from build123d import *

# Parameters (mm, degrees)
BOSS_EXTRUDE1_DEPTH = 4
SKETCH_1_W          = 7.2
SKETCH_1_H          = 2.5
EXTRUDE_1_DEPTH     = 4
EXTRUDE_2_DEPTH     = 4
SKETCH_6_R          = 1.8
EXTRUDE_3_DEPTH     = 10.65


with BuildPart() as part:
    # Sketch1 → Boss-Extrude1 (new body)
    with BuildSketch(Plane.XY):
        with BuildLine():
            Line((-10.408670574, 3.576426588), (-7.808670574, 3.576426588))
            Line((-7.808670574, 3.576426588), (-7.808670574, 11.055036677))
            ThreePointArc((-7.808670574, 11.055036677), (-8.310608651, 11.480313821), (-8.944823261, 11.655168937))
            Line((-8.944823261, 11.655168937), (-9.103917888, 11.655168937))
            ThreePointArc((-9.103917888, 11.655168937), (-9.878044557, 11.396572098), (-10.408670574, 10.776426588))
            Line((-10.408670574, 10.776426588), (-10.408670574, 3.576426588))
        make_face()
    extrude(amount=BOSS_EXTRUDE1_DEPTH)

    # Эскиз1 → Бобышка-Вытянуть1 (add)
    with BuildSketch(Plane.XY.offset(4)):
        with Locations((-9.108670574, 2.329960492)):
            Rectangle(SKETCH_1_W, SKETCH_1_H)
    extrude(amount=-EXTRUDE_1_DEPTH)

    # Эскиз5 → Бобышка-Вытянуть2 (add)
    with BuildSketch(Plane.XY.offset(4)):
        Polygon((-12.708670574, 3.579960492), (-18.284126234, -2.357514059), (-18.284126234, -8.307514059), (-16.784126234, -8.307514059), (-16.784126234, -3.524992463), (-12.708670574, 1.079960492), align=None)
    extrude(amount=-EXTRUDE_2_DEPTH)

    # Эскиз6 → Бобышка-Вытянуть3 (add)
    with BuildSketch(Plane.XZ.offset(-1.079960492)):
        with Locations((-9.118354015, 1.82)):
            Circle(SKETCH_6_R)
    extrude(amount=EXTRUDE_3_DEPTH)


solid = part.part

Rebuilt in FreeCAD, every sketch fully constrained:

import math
import FreeCAD as App
import Part
import Sketcher
from FreeCAD import Vector


def add_polygon(sketch, points):
    """Adds a closed chain of lines whose ends are joined by coincident constraints."""
    first, n = sketch.GeometryCount, len(points)
    for a, b in zip(points, points[1:] + points[:1]):
        sketch.addGeometry(Part.LineSegment(App.Vector(*a, 0), App.Vector(*b, 0)), False)
    for i in range(n):
        sketch.addConstraint(Sketcher.Constraint("Coincident", first + i, 2, first + (i + 1) % n, 1))

doc = App.newDocument("Part")
body = doc.addObject("PartDesign::Body", "Body")

sketch1 = doc.addObject("Sketcher::SketchObject", "Sketch")
body.addObject(sketch1)
sketch1.AttachmentSupport = (doc.XY_Plane, [""])
sketch1.MapMode = "FlatFace"
sketch1.addGeometry([
    Part.LineSegment(Vector(-10.41, 3.58, 0), Vector(-7.81, 3.58, 0)),
    Part.LineSegment(Vector(-7.81, 3.58, 0), Vector(-7.81, 11.06, 0)),
    Part.ArcOfCircle(Part.Circle(Vector(-9.02, 10.13, 0), Vector(0, 0, 1), 1.53), math.radians(37), math.radians(87)),
    Part.LineSegment(Vector(-8.94, 11.66, 0), Vector(-9.1, 11.66, 0)),
    Part.ArcOfCircle(Part.Circle(Vector(-9.02, 10.13, 0), Vector(0, 0, 1), 1.53), math.radians(93), math.radians(155)),
    Part.LineSegment(Vector(-10.41, 10.78, 0), Vector(-10.41, 3.58, 0)),
], False)
sketch1.addConstraint([
    Sketcher.Constraint("Coincident", 0, 2, 1, 1),
    Sketcher.Constraint("Coincident", 1, 2, 2, 1),
    Sketcher.Constraint("Coincident", 2, 2, 3, 1),
    Sketcher.Constraint("Coincident", 3, 2, 4, 1),
    Sketcher.Constraint("Coincident", 4, 2, 5, 1),
    Sketcher.Constraint("Coincident", 5, 2, 0, 1),
    Sketcher.Constraint("Horizontal", 0),
    Sketcher.Constraint("Vertical", 1),
    Sketcher.Constraint("Horizontal", 3),
    Sketcher.Constraint("Vertical", 5),
    Sketcher.Constraint("Coincident", 4, 3, 2, 3),
    Sketcher.Constraint("Equal", 2, 4),
    Sketcher.Constraint("DistanceX", 0, 1, 0, 2, 2.6),
    Sketcher.Constraint("DistanceY", 5, 2, 5, 1, 7.2),
    Sketcher.Constraint("Radius", 2, 1.5282),
    Sketcher.Constraint("DistanceY", 1, 1, 1, 2, 7.47861),
    Sketcher.Constraint("DistanceX", 3, 2, 3, 1, 0.159095),
    Sketcher.Constraint("DistanceX", 2, 3, -1, 1, 9.024371),
    Sketcher.Constraint("DistanceY", -1, 1, 2, 3, 10.129041),
])
pad1 = doc.addObject("PartDesign::Pad", "Pad")
body.addObject(pad1)
pad1.Profile = sketch1
pad1.Length = 4

sketch2 = doc.addObject("Sketcher::SketchObject", "Sketch001")
body.addObject(sketch2)
sketch2.AttachmentSupport = (doc.XY_Plane, [""])
sketch2.MapMode = "FlatFace"
sketch2.AttachmentOffset = App.Placement(Vector(0, 0, 4), App.Rotation())
add_polygon(sketch2, [(-12.7, 3.6), (-12.7, 1.1), (-5.5, 1.1), (-5.5, 3.6)])
sketch2.addConstraint([
    Sketcher.Constraint("Vertical", 0),
    Sketcher.Constraint("Horizontal", 1),
    Sketcher.Constraint("Vertical", 2),
    Sketcher.Constraint("Horizontal", 3),
    Sketcher.Constraint("DistanceX", 1, 1, 1, 2, 7.2),
    Sketcher.Constraint("DistanceY", 0, 2, 0, 1, 2.5),
    Sketcher.Constraint("DistanceX", 0, 2, -1, 1, 12.708671),
    Sketcher.Constraint("DistanceY", -1, 1, 0, 2, 1.07996),
])
pad2 = doc.addObject("PartDesign::Pad", "Pad001")
body.addObject(pad2)
pad2.Profile = sketch2
pad2.Length = 4
pad2.Reversed = True

sketch3 = doc.addObject("Sketcher::SketchObject", "Sketch002")
body.addObject(sketch3)
sketch3.AttachmentSupport = (doc.XY_Plane, [""])
sketch3.MapMode = "FlatFace"
sketch3.AttachmentOffset = App.Placement(Vector(0, 0, 4), App.Rotation())
add_polygon(sketch3, [(-12.7, 3.6), (-18.3, -2.4), (-18.3, -8.3), (-16.8, -8.3), (-16.8, -3.5), (-12.7, 1.1)])
sketch3.addConstraint([
    Sketcher.Constraint("Vertical", 1),
    Sketcher.Constraint("Horizontal", 2),
    Sketcher.Constraint("Vertical", 3),
    Sketcher.Constraint("Vertical", 5),
    Sketcher.Constraint("DistanceX", 2, 1, 2, 2, 1.5),
    Sketcher.Constraint("DistanceY", 5, 1, 5, 2, 2.5),
    Sketcher.Constraint("DistanceY", 1, 2, 1, 1, 5.95),
    Sketcher.Constraint("DistanceY", 3, 1, 3, 2, 4.782522),
    Sketcher.Constraint("DistanceX", 4, 2, -1, 1, 12.708671),
    Sketcher.Constraint("DistanceY", -1, 1, 4, 2, 1.07996),
    Sketcher.Constraint("Distance", 0, 8.144895),
    Sketcher.Constraint("Distance", 4, 6.149385),
])
pad3 = doc.addObject("PartDesign::Pad", "Pad002")
body.addObject(pad3)
pad3.Profile = sketch3
pad3.Length = 4
pad3.Reversed = True

sketch4 = doc.addObject("Sketcher::SketchObject", "Sketch003")
body.addObject(sketch4)
sketch4.AttachmentSupport = (doc.XZ_Plane, [""])
sketch4.MapMode = "FlatFace"
sketch4.AttachmentOffset = App.Placement(Vector(0, 0, -1.07996), App.Rotation())
sketch4.addGeometry(Part.Circle(Vector(-9.1, 1.8, 0), Vector(0, 0, 1), 1.8), False)
sketch4.addConstraint([
    Sketcher.Constraint("Diameter", 0, 3.6),
    Sketcher.Constraint("DistanceY", -1, 1, 0, 3, 1.82),
    Sketcher.Constraint("DistanceX", 0, 3, -1, 1, 9.118354),
])
pad4 = doc.addObject("PartDesign::Pad", "Pad003")
body.addObject(pad4)
pad4.Profile = sketch4
pad4.Length = 10.65

doc.recompute()
